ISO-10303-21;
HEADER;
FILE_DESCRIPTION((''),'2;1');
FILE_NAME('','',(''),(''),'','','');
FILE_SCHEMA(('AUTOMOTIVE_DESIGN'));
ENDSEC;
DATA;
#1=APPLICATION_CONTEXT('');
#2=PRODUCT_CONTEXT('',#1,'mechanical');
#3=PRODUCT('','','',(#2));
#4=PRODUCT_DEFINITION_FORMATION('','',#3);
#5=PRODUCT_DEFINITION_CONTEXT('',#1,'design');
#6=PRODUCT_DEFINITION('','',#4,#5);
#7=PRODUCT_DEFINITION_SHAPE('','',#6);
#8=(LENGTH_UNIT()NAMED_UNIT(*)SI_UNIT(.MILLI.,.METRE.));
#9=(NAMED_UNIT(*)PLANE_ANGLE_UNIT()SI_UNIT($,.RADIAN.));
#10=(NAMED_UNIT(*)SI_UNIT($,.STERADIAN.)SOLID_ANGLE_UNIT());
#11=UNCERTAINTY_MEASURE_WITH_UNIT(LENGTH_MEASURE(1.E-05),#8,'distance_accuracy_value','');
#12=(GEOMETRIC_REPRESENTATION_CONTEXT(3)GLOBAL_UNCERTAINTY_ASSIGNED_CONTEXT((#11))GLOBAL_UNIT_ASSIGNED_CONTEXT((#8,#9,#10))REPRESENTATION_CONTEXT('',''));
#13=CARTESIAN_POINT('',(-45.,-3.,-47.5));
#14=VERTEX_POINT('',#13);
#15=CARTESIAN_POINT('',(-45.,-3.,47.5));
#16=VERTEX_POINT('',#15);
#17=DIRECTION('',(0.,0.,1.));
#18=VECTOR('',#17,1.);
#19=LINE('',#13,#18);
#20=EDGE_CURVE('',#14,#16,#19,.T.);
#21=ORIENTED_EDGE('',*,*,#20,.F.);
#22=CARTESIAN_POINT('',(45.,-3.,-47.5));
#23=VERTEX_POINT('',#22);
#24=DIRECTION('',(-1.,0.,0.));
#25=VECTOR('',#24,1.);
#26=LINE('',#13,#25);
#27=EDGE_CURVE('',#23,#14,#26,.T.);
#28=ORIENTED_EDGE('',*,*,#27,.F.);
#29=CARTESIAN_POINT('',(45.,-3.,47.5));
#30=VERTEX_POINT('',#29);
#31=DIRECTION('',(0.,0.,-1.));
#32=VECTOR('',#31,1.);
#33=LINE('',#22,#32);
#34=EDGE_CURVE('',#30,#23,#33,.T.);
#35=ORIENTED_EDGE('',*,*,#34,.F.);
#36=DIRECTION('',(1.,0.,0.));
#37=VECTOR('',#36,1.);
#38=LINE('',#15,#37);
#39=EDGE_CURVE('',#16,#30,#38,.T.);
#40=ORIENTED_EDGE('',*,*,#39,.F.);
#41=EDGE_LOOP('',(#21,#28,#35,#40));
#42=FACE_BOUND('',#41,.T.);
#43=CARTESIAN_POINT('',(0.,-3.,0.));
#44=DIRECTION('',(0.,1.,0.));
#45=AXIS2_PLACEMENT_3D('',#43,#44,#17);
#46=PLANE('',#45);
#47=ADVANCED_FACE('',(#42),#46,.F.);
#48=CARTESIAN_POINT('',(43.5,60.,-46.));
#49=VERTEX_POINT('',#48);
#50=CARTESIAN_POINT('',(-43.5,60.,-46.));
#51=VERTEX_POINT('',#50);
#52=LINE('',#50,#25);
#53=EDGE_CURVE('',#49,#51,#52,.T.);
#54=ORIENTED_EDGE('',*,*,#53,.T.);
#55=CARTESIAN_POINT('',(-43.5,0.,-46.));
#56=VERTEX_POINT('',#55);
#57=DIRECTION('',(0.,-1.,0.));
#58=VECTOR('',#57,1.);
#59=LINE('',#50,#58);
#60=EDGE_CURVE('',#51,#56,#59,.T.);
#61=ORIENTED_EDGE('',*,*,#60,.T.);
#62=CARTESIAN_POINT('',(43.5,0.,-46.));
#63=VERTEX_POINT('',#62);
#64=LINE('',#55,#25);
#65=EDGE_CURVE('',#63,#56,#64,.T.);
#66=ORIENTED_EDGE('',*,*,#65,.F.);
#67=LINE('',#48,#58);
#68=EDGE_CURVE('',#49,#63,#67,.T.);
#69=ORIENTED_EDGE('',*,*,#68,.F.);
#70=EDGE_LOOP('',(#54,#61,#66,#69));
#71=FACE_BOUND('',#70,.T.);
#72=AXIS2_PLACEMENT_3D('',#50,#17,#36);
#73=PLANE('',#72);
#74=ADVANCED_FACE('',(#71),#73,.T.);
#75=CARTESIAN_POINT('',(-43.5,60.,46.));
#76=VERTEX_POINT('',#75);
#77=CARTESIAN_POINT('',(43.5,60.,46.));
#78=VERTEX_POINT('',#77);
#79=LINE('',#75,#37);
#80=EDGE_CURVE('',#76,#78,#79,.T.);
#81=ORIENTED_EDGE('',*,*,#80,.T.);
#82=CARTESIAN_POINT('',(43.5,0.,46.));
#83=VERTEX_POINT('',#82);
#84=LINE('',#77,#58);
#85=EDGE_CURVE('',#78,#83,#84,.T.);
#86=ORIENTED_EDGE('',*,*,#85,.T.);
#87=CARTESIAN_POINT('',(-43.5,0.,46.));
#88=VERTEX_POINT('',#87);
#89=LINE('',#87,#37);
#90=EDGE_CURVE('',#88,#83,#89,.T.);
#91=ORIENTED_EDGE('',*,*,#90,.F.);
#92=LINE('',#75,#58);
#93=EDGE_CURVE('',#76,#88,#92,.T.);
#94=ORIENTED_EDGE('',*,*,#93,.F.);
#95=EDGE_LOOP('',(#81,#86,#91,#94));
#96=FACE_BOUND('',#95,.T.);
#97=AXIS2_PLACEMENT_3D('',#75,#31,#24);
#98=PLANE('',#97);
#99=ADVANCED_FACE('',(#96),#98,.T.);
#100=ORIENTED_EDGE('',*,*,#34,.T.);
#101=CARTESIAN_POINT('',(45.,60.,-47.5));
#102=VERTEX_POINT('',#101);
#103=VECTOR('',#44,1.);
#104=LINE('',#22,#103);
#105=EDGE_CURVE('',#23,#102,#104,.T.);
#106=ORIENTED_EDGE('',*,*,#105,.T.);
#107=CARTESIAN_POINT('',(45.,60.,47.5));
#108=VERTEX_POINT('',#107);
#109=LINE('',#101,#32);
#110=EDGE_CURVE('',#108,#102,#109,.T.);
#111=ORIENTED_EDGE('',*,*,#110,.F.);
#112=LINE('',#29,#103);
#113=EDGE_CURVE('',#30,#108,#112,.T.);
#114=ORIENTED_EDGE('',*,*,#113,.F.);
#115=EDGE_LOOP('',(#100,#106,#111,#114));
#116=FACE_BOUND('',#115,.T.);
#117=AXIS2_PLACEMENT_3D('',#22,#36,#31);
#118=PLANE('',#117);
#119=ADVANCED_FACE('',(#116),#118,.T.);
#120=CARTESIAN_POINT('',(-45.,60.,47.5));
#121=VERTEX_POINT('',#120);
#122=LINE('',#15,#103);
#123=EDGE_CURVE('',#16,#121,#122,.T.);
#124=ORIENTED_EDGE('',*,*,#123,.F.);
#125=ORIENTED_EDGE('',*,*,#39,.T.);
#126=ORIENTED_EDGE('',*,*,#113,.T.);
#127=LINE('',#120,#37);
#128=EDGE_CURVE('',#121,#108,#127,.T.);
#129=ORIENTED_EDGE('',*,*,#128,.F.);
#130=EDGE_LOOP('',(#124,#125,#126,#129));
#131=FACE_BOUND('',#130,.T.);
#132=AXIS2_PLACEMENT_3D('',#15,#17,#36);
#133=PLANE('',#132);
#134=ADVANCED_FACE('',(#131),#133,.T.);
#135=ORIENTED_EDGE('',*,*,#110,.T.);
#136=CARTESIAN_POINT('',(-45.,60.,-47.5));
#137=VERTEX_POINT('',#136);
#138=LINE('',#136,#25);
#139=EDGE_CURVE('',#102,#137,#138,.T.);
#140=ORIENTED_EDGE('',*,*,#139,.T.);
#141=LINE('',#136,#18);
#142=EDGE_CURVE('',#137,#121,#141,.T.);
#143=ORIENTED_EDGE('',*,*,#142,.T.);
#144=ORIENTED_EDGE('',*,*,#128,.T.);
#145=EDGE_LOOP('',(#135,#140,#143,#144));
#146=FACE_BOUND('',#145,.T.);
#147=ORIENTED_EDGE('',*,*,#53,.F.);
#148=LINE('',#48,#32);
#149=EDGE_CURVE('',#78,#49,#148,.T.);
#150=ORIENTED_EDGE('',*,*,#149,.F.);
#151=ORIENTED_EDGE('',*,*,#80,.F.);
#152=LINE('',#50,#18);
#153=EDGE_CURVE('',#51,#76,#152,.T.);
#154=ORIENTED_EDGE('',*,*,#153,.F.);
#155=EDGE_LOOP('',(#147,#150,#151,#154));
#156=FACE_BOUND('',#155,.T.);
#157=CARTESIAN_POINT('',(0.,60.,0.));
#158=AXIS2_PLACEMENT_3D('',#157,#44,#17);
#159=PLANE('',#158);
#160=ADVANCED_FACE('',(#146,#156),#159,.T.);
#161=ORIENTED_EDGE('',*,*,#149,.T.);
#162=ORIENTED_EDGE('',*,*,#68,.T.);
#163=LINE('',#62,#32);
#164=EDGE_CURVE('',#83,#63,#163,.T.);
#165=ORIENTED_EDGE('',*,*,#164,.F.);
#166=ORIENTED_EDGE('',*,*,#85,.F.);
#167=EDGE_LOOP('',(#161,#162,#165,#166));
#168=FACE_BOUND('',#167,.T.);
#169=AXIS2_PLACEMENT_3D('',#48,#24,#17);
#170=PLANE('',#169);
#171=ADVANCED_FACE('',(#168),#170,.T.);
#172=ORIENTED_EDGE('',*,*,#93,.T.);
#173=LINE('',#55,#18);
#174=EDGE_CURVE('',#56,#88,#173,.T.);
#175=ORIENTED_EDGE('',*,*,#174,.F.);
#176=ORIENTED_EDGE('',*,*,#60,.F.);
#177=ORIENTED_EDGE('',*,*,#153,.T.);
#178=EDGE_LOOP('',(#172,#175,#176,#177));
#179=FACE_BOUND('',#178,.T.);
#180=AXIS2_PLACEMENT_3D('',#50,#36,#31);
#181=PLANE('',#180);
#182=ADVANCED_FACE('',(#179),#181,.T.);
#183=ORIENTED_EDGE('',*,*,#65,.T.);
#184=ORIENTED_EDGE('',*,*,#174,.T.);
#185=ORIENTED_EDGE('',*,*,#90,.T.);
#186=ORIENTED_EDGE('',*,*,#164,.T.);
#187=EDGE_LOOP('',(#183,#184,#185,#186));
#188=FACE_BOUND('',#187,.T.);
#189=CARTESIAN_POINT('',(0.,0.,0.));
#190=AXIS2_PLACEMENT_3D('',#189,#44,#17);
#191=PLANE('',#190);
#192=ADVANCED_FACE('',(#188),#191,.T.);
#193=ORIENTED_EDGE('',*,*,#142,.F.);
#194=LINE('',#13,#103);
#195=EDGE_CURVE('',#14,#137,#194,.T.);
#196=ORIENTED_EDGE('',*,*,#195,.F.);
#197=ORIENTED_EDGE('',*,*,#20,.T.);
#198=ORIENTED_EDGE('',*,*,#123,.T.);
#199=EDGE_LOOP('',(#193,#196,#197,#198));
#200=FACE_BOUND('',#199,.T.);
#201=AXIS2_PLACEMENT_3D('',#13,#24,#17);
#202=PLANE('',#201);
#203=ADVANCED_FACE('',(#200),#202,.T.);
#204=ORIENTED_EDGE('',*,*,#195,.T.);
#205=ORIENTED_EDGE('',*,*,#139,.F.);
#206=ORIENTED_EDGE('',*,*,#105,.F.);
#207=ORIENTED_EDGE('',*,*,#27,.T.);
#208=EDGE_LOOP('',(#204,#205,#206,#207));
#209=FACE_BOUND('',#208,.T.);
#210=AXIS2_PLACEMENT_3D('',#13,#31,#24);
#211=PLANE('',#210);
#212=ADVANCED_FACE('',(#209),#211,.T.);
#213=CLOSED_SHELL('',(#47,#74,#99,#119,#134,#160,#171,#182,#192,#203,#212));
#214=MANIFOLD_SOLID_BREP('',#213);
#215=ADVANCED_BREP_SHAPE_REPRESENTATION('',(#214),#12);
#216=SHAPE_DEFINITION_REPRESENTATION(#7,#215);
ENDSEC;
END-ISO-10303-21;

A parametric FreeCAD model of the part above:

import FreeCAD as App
import Part
import Sketcher
from FreeCAD import Vector
Q = App.Units.Quantity

doc = App.newDocument("Part")
body = doc.addObject("PartDesign::Body", "Body")

sketch1 = doc.addObject("Sketcher::SketchObject", "Sketch")
body.addObject(sketch1)
sketch1.AttachmentSupport = (doc.XZ_Plane, [""])
sketch1.MapMode = "FlatFace"
sketch1.addGeometry([
    Part.LineSegment(Vector(-45, -48, 0), Vector(-45, 48, 0)),
    Part.LineSegment(Vector(-45, 48, 0), Vector(45, 48, 0)),
    Part.LineSegment(Vector(45, 48, 0), Vector(45, -48, 0)),
    Part.LineSegment(Vector(45, -48, 0), Vector(-45, -48, 0)),
], False)
sketch1.addConstraint([
    Sketcher.Constraint("Coincident", 0, 2, 1, 1),
    Sketcher.Constraint("Coincident", 1, 2, 2, 1),
    Sketcher.Constraint("Coincident", 2, 2, 3, 1),
    Sketcher.Constraint("Coincident", 3, 2, 0, 1),
    Sketcher.Constraint("Vertical", 0),
    Sketcher.Constraint("Horizontal", 1),
    Sketcher.Constraint("Vertical", 2),
    Sketcher.Constraint("Horizontal", 3),
    Sketcher.Constraint("Symmetric", 0, 2, 2, 2, -1, 1),
    Sketcher.Constraint("DistanceX", 1, 1, 1, 2, Q("90 mm")),
    Sketcher.Constraint("DistanceY", 0, 1, 0, 2, Q("95 mm")),
])
pad1 = doc.addObject("PartDesign::Pad", "Pad")
body.addObject(pad1)
pad1.Profile = sketch1
pad1.Length = 3

sketch2 = doc.addObject("Sketcher::SketchObject", "Sketch001")
body.addObject(sketch2)
sketch2.AttachmentSupport = (doc.XZ_Plane, [""])
sketch2.MapMode = "FlatFace"
sketch2.addGeometry([
    Part.LineSegment(Vector(-45, -48, 0), Vector(-45, 48, 0)),
    Part.LineSegment(Vector(-45, 48, 0), Vector(45, 48, 0)),
    Part.LineSegment(Vector(45, 48, 0), Vector(45, -48, 0)),
    Part.LineSegment(Vector(45, -48, 0), Vector(-45, -48, 0)),
    Part.LineSegment(Vector(44, 46, 0), Vector(-44, 46, 0)),
    Part.LineSegment(Vector(-44, 46, 0), Vector(-44, -46, 0)),
    Part.LineSegment(Vector(-44, -46, 0), Vector(44, -46, 0)),
    Part.LineSegment(Vector(44, -46, 0), Vector(44, 46, 0)),
], False)
sketch2.addConstraint([
    Sketcher.Constraint("Coincident", 0, 2, 1, 1),
    Sketcher.Constraint("Coincident", 1, 2, 2, 1),
    Sketcher.Constraint("Coincident", 2, 2, 3, 1),
    Sketcher.Constraint("Coincident", 3, 2, 0, 1),
    Sketcher.Constraint("Coincident", 4, 2, 5, 1),
    Sketcher.Constraint("Coincident", 5, 2, 6, 1),
    Sketcher.Constraint("Coincident", 6, 2, 7, 1),
    Sketcher.Constraint("Coincident", 7, 2, 4, 1),
    Sketcher.Constraint("Vertical", 0),
    Sketcher.Constraint("Horizontal", 1),
    Sketcher.Constraint("Vertical", 2),
    Sketcher.Constraint("Horizontal", 3),
    Sketcher.Constraint("Horizontal", 4),
    Sketcher.Constraint("Vertical", 5),
    Sketcher.Constraint("Horizontal", 6),
    Sketcher.Constraint("Vertical", 7),
    Sketcher.Constraint("Symmetric", 0, 2, 2, 2, -1, 1),
    Sketcher.Constraint("Symmetric", 4, 2, 6, 2, -1, 1),
    Sketcher.Constraint("DistanceX", 1, 1, 1, 2, Q("90 mm")),
    Sketcher.Constraint("DistanceX", 4, 2, 4, 1, Q("87 mm")),
    Sketcher.Constraint("DistanceY", 0, 1, 0, 2, Q("95 mm")),
    Sketcher.Constraint("DistanceY", 5, 2, 5, 1, Q("92 mm")),
])
pad2 = doc.addObject("PartDesign::Pad", "Pad001")
body.addObject(pad2)
pad2.Profile = sketch2
pad2.Length = 60
pad2.Reversed = True

doc.recompute()
